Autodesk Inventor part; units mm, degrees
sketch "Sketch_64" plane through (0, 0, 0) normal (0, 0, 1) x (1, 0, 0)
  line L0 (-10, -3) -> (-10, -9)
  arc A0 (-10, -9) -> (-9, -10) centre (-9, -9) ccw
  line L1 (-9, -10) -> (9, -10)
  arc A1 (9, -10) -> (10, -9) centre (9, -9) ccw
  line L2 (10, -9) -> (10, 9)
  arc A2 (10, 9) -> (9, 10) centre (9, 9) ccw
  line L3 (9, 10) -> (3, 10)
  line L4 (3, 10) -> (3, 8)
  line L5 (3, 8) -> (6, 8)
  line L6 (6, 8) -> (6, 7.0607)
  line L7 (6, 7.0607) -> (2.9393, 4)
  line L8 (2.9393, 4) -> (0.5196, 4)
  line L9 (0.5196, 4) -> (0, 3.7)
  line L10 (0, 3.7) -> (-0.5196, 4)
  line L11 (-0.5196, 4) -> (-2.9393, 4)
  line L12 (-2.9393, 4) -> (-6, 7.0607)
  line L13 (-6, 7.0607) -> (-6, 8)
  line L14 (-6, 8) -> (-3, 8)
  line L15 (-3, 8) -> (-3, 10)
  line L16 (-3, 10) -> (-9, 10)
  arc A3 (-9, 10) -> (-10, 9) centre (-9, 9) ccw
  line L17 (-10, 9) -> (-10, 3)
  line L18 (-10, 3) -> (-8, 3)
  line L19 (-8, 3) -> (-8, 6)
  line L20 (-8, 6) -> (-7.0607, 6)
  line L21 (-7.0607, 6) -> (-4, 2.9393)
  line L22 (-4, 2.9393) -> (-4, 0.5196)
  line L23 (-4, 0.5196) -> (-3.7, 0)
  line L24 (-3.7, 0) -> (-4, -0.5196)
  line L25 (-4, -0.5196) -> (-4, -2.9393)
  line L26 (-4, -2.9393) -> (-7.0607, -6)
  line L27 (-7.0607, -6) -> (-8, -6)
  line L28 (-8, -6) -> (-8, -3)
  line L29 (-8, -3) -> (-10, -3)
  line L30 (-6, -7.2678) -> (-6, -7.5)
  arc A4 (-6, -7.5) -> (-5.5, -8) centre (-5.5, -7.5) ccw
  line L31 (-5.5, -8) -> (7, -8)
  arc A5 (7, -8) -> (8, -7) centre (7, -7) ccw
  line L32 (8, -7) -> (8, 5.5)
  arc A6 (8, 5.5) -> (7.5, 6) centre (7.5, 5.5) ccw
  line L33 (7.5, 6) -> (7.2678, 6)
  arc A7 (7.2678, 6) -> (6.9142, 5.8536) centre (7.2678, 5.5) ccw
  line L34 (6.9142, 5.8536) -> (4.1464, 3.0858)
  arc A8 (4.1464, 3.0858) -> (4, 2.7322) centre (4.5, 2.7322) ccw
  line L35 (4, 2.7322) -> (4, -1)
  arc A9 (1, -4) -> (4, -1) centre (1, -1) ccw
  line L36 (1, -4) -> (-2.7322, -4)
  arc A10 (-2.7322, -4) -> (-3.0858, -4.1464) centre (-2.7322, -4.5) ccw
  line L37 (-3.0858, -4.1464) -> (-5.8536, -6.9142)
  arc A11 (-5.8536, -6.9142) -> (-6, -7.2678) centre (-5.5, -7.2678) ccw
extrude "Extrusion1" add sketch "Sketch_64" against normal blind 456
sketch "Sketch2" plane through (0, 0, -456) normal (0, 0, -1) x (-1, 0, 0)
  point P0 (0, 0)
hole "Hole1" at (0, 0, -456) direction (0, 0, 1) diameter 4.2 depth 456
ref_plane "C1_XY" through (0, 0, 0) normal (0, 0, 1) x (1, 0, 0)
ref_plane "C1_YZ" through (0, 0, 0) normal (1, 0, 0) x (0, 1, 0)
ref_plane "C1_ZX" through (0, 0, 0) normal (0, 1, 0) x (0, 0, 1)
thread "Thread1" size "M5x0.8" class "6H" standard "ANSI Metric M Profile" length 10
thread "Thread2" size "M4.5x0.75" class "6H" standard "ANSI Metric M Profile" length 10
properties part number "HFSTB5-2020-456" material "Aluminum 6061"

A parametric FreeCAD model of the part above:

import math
import FreeCAD as App
import Part
import Sketcher
from FreeCAD import Vector
Q = App.Units.Quantity

doc = App.newDocument("Part")
body = doc.addObject("PartDesign::Body", "Body")

sketch1 = body.newObject("Sketcher::SketchObject", "Sketch")
sketch1.AttachmentSupport = (doc.getObject("XY_Plane"), [""])
sketch1.MapMode = "FlatFace"
sketch1.addGeometry([
    Part.LineSegment(Vector(-8, -3, 0), Vector(-10, -3, 0)),
    Part.LineSegment(Vector(-10, -3, 0), Vector(-10, -9, 0)),
    Part.ArcOfCircle(Part.Circle(Vector(-9, -9, 0), Vector(0, 0, 1), 1), math.radians(180), math.radians(270)),
    Part.LineSegment(Vector(-9, -10, 0), Vector(9, -10, 0)),
    Part.ArcOfCircle(Part.Circle(Vector(9, -9, 0), Vector(0, 0, 1), 1), math.radians(-90), math.radians(0)),
    Part.LineSegment(Vector(10, -9, 0), Vector(10, 9, 0)),
    Part.ArcOfCircle(Part.Circle(Vector(9, 9, 0), Vector(0, 0, 1), 1), math.radians(0), math.radians(90)),
    Part.LineSegment(Vector(9, 10, 0), Vector(3, 10, 0)),
    Part.LineSegment(Vector(3, 10, 0), Vector(3, 8, 0)),
    Part.LineSegment(Vector(3, 8, 0), Vector(6, 8, 0)),
    Part.LineSegment(Vector(6, 8, 0), Vector(6, 7.0607, 0)),
    Part.LineSegment(Vector(6, 7.0607, 0), Vector(2.9393, 4, 0)),
    Part.LineSegment(Vector(2.9393, 4, 0), Vector(0.5196, 4, 0)),
    Part.LineSegment(Vector(0.5196, 4, 0), Vector(0, 3.7, 0)),
    Part.LineSegment(Vector(0, 3.7, 0), Vector(-0.5196, 4, 0)),
    Part.LineSegment(Vector(-0.5196, 4, 0), Vector(-2.9393, 4, 0)),
    Part.LineSegment(Vector(-2.9393, 4, 0), Vector(-6, 7.0607, 0)),
    Part.LineSegment(Vector(-6, 7.0607, 0), Vector(-6, 8, 0)),
    Part.LineSegment(Vector(-6, 8, 0), Vector(-3, 8, 0)),
    Part.LineSegment(Vector(-3, 8, 0), Vector(-3, 10, 0)),
    Part.LineSegment(Vector(-3, 10, 0), Vector(-9, 10, 0)),
    Part.ArcOfCircle(Part.Circle(Vector(-9, 9, 0), Vector(0, 0, 1), 1), math.radians(90), math.radians(180)),
    Part.LineSegment(Vector(-10, 9, 0), Vector(-10, 3, 0)),
    Part.LineSegment(Vector(-10, 3, 0), Vector(-8, 3, 0)),
    Part.LineSegment(Vector(-8, 3, 0), Vector(-8, 6, 0)),
    Part.LineSegment(Vector(-8, 6, 0), Vector(-7.0607, 6, 0)),
    Part.LineSegment(Vector(-7.0607, 6, 0), Vector(-4, 2.9393, 0)),
    Part.LineSegment(Vector(-4, 2.9393, 0), Vector(-4, 0.5196, 0)),
    Part.LineSegment(Vector(-4, 0.5196, 0), Vector(-3.7, 0, 0)),
    Part.LineSegment(Vector(-3.7, 0, 0), Vector(-4, -0.5196, 0)),
    Part.LineSegment(Vector(-4, -0.5196, 0), Vector(-4, -2.9393, 0)),
    Part.LineSegment(Vector(-4, -2.9393, 0), Vector(-7.0607, -6, 0)),
    Part.LineSegment(Vector(-7.0607, -6, 0), Vector(-8, -6, 0)),
    Part.LineSegment(Vector(-8, -6, 0), Vector(-8, -3, 0)),
    Part.LineSegment(Vector(-6, -7.5, 0), Vector(-6, -7.2678, 0)),
    Part.ArcOfCircle(Part.Circle(Vector(-5.5, -7.2678, 0), Vector(0, 0, 1), 0.500066), math.radians(135), math.radians(180)),
    Part.LineSegment(Vector(-5.8536, -6.9142, 0), Vector(-3.0858, -4.1464, 0)),
    Part.ArcOfCircle(Part.Circle(Vector(-2.7322, -4.5, 0), Vector(0, 0, 1), 0.5), math.radians(90), math.radians(135)),
    Part.LineSegment(Vector(-2.7322, -4, 0), Vector(1, -4, 0)),
    Part.ArcOfCircle(Part.Circle(Vector(1, -1, 0), Vector(0, 0, 1), 3), math.radians(-90), math.radians(0)),
    Part.LineSegment(Vector(4, -1, 0), Vector(4, 2.7322, 0)),
    Part.ArcOfCircle(Part.Circle(Vector(4.5, 2.7322, 0), Vector(0, 0, 1), 0.500066), math.radians(135), math.radians(180)),
    Part.LineSegment(Vector(4.1464, 3.0858, 0), Vector(6.9142, 5.8536, 0)),
    Part.ArcOfCircle(Part.Circle(Vector(7.2678, 5.5, 0), Vector(0, 0, 1), 0.5), math.radians(90), math.radians(135)),
    Part.LineSegment(Vector(7.2678, 6, 0), Vector(7.5, 6, 0)),
    Part.ArcOfCircle(Part.Circle(Vector(7.5, 5.5, 0), Vector(0, 0, 1), 0.5), math.radians(0), math.radians(90)),
    Part.LineSegment(Vector(8, 5.5, 0), Vector(8, -7, 0)),
    Part.ArcOfCircle(Part.Circle(Vector(7, -7, 0), Vector(0, 0, 1), 1), math.radians(-90), math.radians(0)),
    Part.LineSegment(Vector(7, -8, 0), Vector(-5.5, -8, 0)),
    Part.ArcOfCircle(Part.Circle(Vector(-5.5, -7.5, 0), Vector(0, 0, 1), 0.5), math.radians(180), math.radians(270)),
], False)
sketch1.addConstraint([
    Sketcher.Constraint("Coincident", 0, 2, 1, 1),
    Sketcher.Constraint("Tangent", 1, 2, 2, 1),
    Sketcher.Constraint("Tangent", 2, 2, 3, 1),
    Sketcher.Constraint("Tangent", 3, 2, 4, 1),
    Sketcher.Constraint("Tangent", 4, 2, 5, 1),
    Sketcher.Constraint("Tangent", 5, 2, 6, 1),
    Sketcher.Constraint("Tangent", 6, 2, 7, 1),
    Sketcher.Constraint("Coincident", 7, 2, 8, 1),
    Sketcher.Constraint("Coincident", 8, 2, 9, 1),
    Sketcher.Constraint("Coincident", 9, 2, 10, 1),
    Sketcher.Constraint("Coincident", 10, 2, 11, 1),
    Sketcher.Constraint("Coincident", 11, 2, 12, 1),
    Sketcher.Constraint("Coincident", 12, 2, 13, 1),
    Sketcher.Constraint("Coincident", 13, 2, 14, 1),
    Sketcher.Constraint("Coincident", 14, 2, 15, 1),
    Sketcher.Constraint("Coincident", 15, 2, 16, 1),
    Sketcher.Constraint("Coincident", 16, 2, 17, 1),
    Sketcher.Constraint("Coincident", 17, 2, 18, 1),
    Sketcher.Constraint("Coincident", 18, 2, 19, 1),
    Sketcher.Constraint("Coincident", 19, 2, 20, 1),
    Sketcher.Constraint("Tangent", 20, 2, 21, 1),
    Sketcher.Constraint("Tangent", 21, 2, 22, 1),
    Sketcher.Constraint("Coincident", 22, 2, 23, 1),
    Sketcher.Constraint("Coincident", 23, 2, 24, 1),
    Sketcher.Constraint("Coincident", 24, 2, 25, 1),
    Sketcher.Constraint("Coincident", 25, 2, 26, 1),
    Sketcher.Constraint("Coincident", 26, 2, 27, 1),
    Sketcher.Constraint("Coincident", 27, 2, 28, 1),
    Sketcher.Constraint("Coincident", 28, 2, 29, 1),
    Sketcher.Constraint("Coincident", 29, 2, 30, 1),
    Sketcher.Constraint("Coincident", 30, 2, 31, 1),
    Sketcher.Constraint("Coincident", 31, 2, 32, 1),
    Sketcher.Constraint("Coincident", 32, 2, 33, 1),
    Sketcher.Constraint("Coincident", 33, 2, 0, 1),
    Sketcher.Constraint("Tangent", 34, 2, 35, 2),
    Sketcher.Constraint("Tangent", 35, 1, 36, 1),
    Sketcher.Constraint("Tangent", 36, 2, 37, 2),
    Sketcher.Constraint("Tangent", 37, 1, 38, 1),
    Sketcher.Constraint("Tangent", 38, 2, 39, 1),
    Sketcher.Constraint("Tangent", 39, 2, 40, 1),
    Sketcher.Constraint("Tangent", 40, 2, 41, 2),
    Sketcher.Constraint("Tangent", 41, 1, 42, 1),
    Sketcher.Constraint("Tangent", 42, 2, 43, 2),
    Sketcher.Constraint("Tangent", 43, 1, 44, 1),
    Sketcher.Constraint("Tangent", 44, 2, 45, 2),
    Sketcher.Constraint("Tangent", 45, 1, 46, 1),
    Sketcher.Constraint("Tangent", 46, 2, 47, 2),
    Sketcher.Constraint("Tangent", 47, 1, 48, 1),
    Sketcher.Constraint("Tangent", 48, 2, 49, 2),
    Sketcher.Constraint("Tangent", 49, 1, 34, 1),
    Sketcher.Constraint("Horizontal", 0),
    Sketcher.Constraint("Vertical", 1),
    Sketcher.Constraint("Horizontal", 3),
    Sketcher.Constraint("Vertical", 5),
    Sketcher.Constraint("Horizontal", 7),
    Sketcher.Constraint("Vertical", 8),
    Sketcher.Constraint("Horizontal", 9),
    Sketcher.Constraint("Vertical", 10),
    Sketcher.Constraint("Horizontal", 12),
    Sketcher.Constraint("Horizontal", 15),
    Sketcher.Constraint("Vertical", 17),
    Sketcher.Constraint("Horizontal", 18),
    Sketcher.Constraint("Vertical", 19),
    Sketcher.Constraint("Horizontal", 20),
    Sketcher.Constraint("Vertical", 22),
    Sketcher.Constraint("Horizontal", 23),
    Sketcher.Constraint("Vertical", 24),
    Sketcher.Constraint("Horizontal", 25),
    Sketcher.Constraint("Vertical", 27),
    Sketcher.Constraint("Vertical", 30),
    Sketcher.Constraint("Horizontal", 32),
    Sketcher.Constraint("Vertical", 33),
    Sketcher.Constraint("Vertical", 34),
    Sketcher.Constraint("Horizontal", 38),
    Sketcher.Constraint("Vertical", 40),
    Sketcher.Constraint("Horizontal", 44),
    Sketcher.Constraint("Vertical", 46),
    Sketcher.Constraint("Horizontal", 48),
    Sketcher.Constraint("Equal", 2, 4),
    Sketcher.Constraint("Equal", 4, 6),
    Sketcher.Constraint("Equal", 6, 21),
    Sketcher.Constraint("Equal", 35, 37),
    Sketcher.Constraint("Equal", 37, 41),
    Sketcher.Constraint("Equal", 41, 43),
    Sketcher.Constraint("Equal", 43, 45),
    Sketcher.Constraint("Equal", 21, 47),
    Sketcher.Constraint("Equal", 45, 49),
    Sketcher.Constraint("Symmetric", 2, 3, 6, 3, -1, 1),
    Sketcher.Constraint("Symmetric", 4, 3, 21, 3, -1, 1),
    Sketcher.Constraint("Symmetric", 12, 2, 14, 2, -2),
    Sketcher.Constraint("Symmetric", 10, 2, 16, 2, -2),
    Sketcher.Constraint("Symmetric", 8, 2, 18, 2, -2),
    Sketcher.Constraint("Symmetric", 27, 2, 29, 2, -1),
    Sketcher.Constraint("Symmetric", 25, 2, 31, 2, -1),
    Sketcher.Constraint("Symmetric", 23, 2, 33, 2, -1),
    Sketcher.Constraint("PointOnObject", 13, 2, -2),
    Sketcher.Constraint("PointOnObject", 28, 2, -1),
    Sketcher.Constraint("Perpendicular", 11, 16),
    Sketcher.Constraint("Parallel", 16, 26),
    Sketcher.Constraint("Perpendicular", 13, 28),
    Sketcher.Constraint("Perpendicular", 26, 31),
    Sketcher.Constraint("Parallel", 31, 36),
    Sketcher.Constraint("Parallel", 36, 42),
    Sketcher.Constraint("Horizontal", 25, 2, 43, 1),
    Sketcher.Constraint("Vertical", 17, 2, 34, 2),
    Sketcher.Constraint("Equal", 12, 15),
    Sketcher.Constraint("Equal", 20, 1),
    Sketcher.Constraint("Equal", 3, 5),
    Sketcher.Constraint("Equal", 23, 8),
    Sketcher.Constraint("Equal", 32, 10),
    Sketcher.Constraint("Equal", 18, 24),
    Sketcher.Constraint("Equal", 15, 27),
    Sketcher.Constraint("Equal", 44, 34),
    Sketcher.Constraint("Equal", 38, 40),
    Sketcher.Constraint("Equal", 16, 26),
    Sketcher.Constraint("Equal", 36, 42),
    Sketcher.Constraint("Radius", 2, Q("1 mm")),
    Sketcher.Constraint("Radius", 39, Q("3 mm")),
    Sketcher.Constraint("Radius", 35, Q("0.5 mm")),
    Sketcher.Constraint("DistanceX", 0, 2, 0, 1, Q("2 mm")),
    Sketcher.Constraint("DistanceX", 3, 1, 3, 2, Q("18 mm")),
    Sketcher.Constraint("DistanceX", 7, 2, 7, 1, Q("6 mm")),
    Sketcher.Constraint("DistanceX", 9, 1, 9, 2, Q("3 mm")),
    Sketcher.Constraint("Angle", 13, Q("-149.9993 deg")),
    Sketcher.Constraint("DistanceX", 48, 2, 48, 1, Q("12.5 mm")),
    Sketcher.Constraint("DistanceX", -1, 1, 39, 3, Q("1 mm")),
    Sketcher.Constraint("DistanceY", -1, 1, 11, 2, Q("4 mm")),
    Sketcher.Constraint("Distance", 13, Q("0.6 mm")),
    Sketcher.Constraint("DistanceX", 12, 2, 12, 1, Q("2.4197 mm")),
    Sketcher.Constraint("DistanceX", 38, 1, 38, 2, Q("3.7322 mm")),
])
pad1 = body.newObject("PartDesign::Pad", "Pad")
pad1.Profile = sketch1
pad1.Length = 456
pad1.Reversed = True

sketch2 = body.newObject("Sketcher::SketchObject", "Sketch001")
sketch2.AttachmentSupport = (doc.getObject("XY_Plane"), [""])
sketch2.MapMode = "FlatFace"
sketch2.AttachmentOffset = App.Placement(Vector(0, 0, -456), App.Rotation())
sketch2.addGeometry(Part.Circle(Vector(0, 0, 0), Vector(0, 0, 1), 2.1), False)
sketch2.addConstraint([
    Sketcher.Constraint("Coincident", 0, 3, -1, 1),
    Sketcher.Constraint("Diameter", 0, Q("4.2 mm")),
])
doc.recompute()
hole = body.newObject("PartDesign::Hole", "Hole")
hole.Profile = sketch2
hole.ThreadType = "None"
hole.Diameter = 4.2
hole.DepthType = "Dimension"
hole.Depth = 456
hole.DrillPoint = "Flat"
hole.Reversed = True

doc.recompute()
